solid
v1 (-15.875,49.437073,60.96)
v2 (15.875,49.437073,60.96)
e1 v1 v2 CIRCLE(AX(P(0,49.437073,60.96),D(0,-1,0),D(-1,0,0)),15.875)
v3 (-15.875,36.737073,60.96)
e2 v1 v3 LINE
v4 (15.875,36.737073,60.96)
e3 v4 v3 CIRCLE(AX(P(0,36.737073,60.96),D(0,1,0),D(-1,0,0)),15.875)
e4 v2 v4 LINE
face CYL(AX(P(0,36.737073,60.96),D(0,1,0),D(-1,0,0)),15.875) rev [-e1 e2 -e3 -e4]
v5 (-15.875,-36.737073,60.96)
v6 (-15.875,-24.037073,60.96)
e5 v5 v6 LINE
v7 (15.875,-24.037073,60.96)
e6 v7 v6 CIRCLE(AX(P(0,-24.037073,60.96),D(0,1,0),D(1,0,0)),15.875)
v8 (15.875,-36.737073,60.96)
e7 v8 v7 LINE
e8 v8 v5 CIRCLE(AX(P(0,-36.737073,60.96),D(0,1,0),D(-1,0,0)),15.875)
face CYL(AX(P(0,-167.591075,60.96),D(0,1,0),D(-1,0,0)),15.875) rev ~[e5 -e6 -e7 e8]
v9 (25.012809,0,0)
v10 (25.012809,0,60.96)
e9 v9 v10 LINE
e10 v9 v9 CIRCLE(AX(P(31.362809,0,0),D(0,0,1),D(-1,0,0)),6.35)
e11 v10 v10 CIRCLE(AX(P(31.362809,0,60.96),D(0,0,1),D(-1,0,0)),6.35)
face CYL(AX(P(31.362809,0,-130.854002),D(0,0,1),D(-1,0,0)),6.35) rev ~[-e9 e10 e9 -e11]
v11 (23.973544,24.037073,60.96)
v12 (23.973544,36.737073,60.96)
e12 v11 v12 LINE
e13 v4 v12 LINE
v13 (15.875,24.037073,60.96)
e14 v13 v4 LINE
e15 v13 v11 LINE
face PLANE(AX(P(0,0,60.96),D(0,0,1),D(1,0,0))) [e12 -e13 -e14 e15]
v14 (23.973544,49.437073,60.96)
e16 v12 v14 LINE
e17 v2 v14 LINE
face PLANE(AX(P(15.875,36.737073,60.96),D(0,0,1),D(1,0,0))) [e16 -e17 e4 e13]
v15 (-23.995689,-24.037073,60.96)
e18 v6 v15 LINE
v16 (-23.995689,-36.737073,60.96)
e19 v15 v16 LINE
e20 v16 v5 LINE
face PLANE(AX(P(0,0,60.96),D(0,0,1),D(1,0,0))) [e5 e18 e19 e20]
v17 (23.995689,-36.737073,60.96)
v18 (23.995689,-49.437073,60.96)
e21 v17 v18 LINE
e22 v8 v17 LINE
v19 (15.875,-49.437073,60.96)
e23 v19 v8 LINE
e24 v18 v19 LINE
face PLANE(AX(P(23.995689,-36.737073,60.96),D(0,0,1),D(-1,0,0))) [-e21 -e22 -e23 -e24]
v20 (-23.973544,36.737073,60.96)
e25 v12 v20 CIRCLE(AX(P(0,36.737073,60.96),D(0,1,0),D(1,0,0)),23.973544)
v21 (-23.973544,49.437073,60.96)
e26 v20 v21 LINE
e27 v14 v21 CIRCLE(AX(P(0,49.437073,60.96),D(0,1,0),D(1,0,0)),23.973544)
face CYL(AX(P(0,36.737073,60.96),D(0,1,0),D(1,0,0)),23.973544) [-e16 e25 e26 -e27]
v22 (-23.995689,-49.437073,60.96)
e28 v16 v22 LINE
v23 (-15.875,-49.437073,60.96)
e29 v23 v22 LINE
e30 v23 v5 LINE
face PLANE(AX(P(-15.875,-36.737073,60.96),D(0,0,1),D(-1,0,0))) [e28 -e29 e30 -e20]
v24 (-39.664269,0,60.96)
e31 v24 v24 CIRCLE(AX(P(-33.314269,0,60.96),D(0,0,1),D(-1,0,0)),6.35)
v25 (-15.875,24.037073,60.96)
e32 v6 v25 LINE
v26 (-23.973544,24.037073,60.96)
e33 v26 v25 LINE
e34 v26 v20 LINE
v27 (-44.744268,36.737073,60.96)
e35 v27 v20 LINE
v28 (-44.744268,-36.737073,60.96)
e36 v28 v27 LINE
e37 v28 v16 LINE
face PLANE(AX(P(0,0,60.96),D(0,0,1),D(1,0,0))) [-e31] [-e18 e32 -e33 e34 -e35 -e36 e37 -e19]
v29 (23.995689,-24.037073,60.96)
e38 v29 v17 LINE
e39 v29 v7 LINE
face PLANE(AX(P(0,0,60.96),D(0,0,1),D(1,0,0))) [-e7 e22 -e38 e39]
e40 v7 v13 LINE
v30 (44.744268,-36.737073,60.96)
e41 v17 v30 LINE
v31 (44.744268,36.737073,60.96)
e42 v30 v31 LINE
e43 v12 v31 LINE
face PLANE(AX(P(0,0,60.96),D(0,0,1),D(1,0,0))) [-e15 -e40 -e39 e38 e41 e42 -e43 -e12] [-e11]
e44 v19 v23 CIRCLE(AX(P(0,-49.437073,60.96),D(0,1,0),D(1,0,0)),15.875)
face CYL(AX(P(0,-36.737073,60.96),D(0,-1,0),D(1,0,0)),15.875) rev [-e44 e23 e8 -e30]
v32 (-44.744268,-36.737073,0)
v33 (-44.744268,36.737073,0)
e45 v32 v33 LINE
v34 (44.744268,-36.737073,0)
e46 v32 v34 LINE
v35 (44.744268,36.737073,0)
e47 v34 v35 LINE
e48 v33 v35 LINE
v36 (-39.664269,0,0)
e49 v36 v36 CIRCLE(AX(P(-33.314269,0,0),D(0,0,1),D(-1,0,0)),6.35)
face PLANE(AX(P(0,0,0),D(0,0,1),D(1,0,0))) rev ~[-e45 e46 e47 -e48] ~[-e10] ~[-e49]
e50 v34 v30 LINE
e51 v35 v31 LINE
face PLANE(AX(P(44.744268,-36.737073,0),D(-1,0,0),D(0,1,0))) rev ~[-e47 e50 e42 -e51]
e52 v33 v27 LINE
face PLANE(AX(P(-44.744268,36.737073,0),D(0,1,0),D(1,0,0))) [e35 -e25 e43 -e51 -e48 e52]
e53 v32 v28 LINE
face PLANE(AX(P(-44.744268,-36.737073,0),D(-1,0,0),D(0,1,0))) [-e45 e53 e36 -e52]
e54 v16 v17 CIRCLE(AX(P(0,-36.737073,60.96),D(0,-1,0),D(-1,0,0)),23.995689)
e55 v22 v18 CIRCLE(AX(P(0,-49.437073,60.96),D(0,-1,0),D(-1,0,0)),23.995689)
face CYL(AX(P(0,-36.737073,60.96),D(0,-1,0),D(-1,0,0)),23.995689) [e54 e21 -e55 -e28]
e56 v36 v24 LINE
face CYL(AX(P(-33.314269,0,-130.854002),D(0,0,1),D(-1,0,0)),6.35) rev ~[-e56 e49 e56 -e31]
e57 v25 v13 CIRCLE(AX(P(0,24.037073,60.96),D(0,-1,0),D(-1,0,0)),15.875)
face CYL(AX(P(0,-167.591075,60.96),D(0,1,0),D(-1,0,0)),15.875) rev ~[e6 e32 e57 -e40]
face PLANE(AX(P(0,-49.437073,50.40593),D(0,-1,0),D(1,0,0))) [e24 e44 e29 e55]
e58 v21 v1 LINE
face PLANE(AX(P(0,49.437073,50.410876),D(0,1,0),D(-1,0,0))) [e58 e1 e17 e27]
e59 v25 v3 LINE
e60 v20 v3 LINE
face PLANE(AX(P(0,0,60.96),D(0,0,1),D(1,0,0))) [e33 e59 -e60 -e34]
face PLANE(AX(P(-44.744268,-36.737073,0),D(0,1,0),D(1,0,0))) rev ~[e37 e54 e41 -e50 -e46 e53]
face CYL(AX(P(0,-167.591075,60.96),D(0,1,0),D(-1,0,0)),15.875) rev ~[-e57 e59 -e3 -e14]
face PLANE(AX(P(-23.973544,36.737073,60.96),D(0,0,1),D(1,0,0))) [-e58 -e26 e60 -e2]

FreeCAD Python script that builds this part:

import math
import FreeCAD as App
import Part
import Sketcher
from FreeCAD import Vector
Q = App.Units.Quantity


def add_polygon(sketch, points):
    """Adds a closed chain of lines whose ends are joined by coincident constraints."""
    first, n = sketch.GeometryCount, len(points)
    for a, b in zip(points, points[1:] + points[:1]):
        sketch.addGeometry(Part.LineSegment(App.Vector(*a, 0), App.Vector(*b, 0)), False)
    for i in range(n):
        sketch.addConstraint(Sketcher.Constraint("Coincident", first + i, 2, first + (i + 1) % n, 1))

doc = App.newDocument("Part")
params = doc.addObject("Spreadsheet::Sheet", "Params")
for row, (alias, value) in enumerate([
    ("pad1_length", "2.4 in"),
    ("sketch2_diameter", "0.5 in"),
    ("hole_diameter", "0.5 in"),
    ("sketch3_diameter", "1.25 in"),
    ("hole2_diameter", "1.25 in"),
    ("sketch4_radius", "0.625 in"),
    ("pad2_length", "1 in"),
    ("sketch5_radius", "0.625 in"),
    ("pad3_length", "1 in"),
], start=1):
    params.set(f"A{row}", alias)
    params.set(f"B{row}", "=" + value)
    params.setAlias(f"B{row}", alias)

body = doc.addObject("PartDesign::Body", "Body")

sketch1 = body.newObject("Sketcher::SketchObject", "Sketch")
sketch1.AttachmentSupport = (doc.getObject("XY_Plane"), [""])
sketch1.MapMode = "FlatFace"
add_polygon(sketch1, [(-45, 37), (-45, -37), (45, -37), (45, 37)])
sketch1.addConstraint(Sketcher.Constraint("Vertical", 0))
sketch1.addConstraint(Sketcher.Constraint("Horizontal", 1))
sketch1.addConstraint(Sketcher.Constraint("Vertical", 2))
sketch1.addConstraint(Sketcher.Constraint("Horizontal", 3))
sketch1.addConstraint(Sketcher.Constraint("Symmetric", 0, 2, 2, 2, -1, 1))
sketch1.addConstraint(Sketcher.Constraint("DistanceX", 1, 1, 1, 2, 89.488536))
sketch1.addConstraint(Sketcher.Constraint("DistanceY", 0, 2, 0, 1, 73.474146))
pad1 = body.newObject("PartDesign::Pad", "Pad")
pad1.Profile = sketch1
pad1.setExpression("Length", "Params.pad1_length")

sketch2 = body.newObject("Sketcher::SketchObject", "Sketch001")
sketch2.AttachmentSupport = (doc.getObject("XY_Plane"), [""])
sketch2.MapMode = "FlatFace"
sketch2.addGeometry(Part.Circle(Vector(-33, 0, 0), Vector(0, 0, 1), 6), False)
sketch2.addGeometry(Part.Circle(Vector(31, 0, 0), Vector(0, 0, 1), 6), False)
sketch2.addConstraint(Sketcher.Constraint("Equal", 0, 1))
sketch2.addConstraint(Sketcher.Constraint("PointOnObject", 0, 3, -1))
sketch2.addConstraint(Sketcher.Constraint("PointOnObject", 1, 3, -1))
sketch2.addConstraint(Sketcher.Constraint("Diameter", 0, Q("0.5 in")))
sketch2.addConstraint(Sketcher.Constraint("DistanceX", 0, 3, -1, 1, 33.314269))
sketch2.addConstraint(Sketcher.Constraint("DistanceX", -1, 1, 1, 3, 31.362809))
sketch2.setExpression("Constraints[3]", "Params.sketch2_diameter")
doc.recompute()
hole = body.newObject("PartDesign::Hole", "Hole")
hole.Profile = sketch2
hole.ThreadType = "None"
hole.setExpression("Diameter", "Params.hole_diameter")
hole.DepthType = "ThroughAll"
hole.Reversed = True

sketch3 = body.newObject("Sketcher::SketchObject", "Sketch002")
sketch3.AttachmentSupport = (doc.getObject("XZ_Plane"), [""])
sketch3.MapMode = "FlatFace"
sketch3.AttachmentOffset = App.Placement(Vector(0, 0, 36.737073), App.Rotation())
sketch3.addGeometry(Part.Circle(Vector(0, 61, 0), Vector(0, 0, 1), 16), False)
sketch3.addConstraint(Sketcher.Constraint("PointOnObject", 0, 3, -2))
sketch3.addConstraint(Sketcher.Constraint("Diameter", 0, Q("1.25 in")))
sketch3.addConstraint(Sketcher.Constraint("DistanceY", -1, 1, 0, 3, Q("2.4 in")))
sketch3.setExpression("Constraints[1]", "Params.sketch3_diameter")
doc.recompute()
hole2 = body.newObject("PartDesign::Hole", "Hole001")
hole2.Profile = sketch3
hole2.ThreadType = "None"
hole2.setExpression("Diameter", "Params.hole2_diameter")
hole2.DepthType = "ThroughAll"

sketch4 = body.newObject("Sketcher::SketchObject", "Sketch003")
sketch4.AttachmentSupport = (doc.getObject("XZ_Plane"), [""])
sketch4.MapMode = "FlatFace"
sketch4.AttachmentOffset = App.Placement(Vector(0, 0, 36.737073), App.Rotation())
sketch4.addGeometry(Part.LineSegment(Vector(-16, 61, 0), Vector(-24, 61, 0)), False)
sketch4.addGeometry(Part.ArcOfCircle(Part.Circle(Vector(0, 61, 0), Vector(0, 0, 1), 24), math.radians(180), math.radians(360)), False)
sketch4.addGeometry(Part.LineSegment(Vector(24, 61, 0), Vector(16, 61, 0)), False)
sketch4.addGeometry(Part.ArcOfCircle(Part.Circle(Vector(0, 61, 0), Vector(0, 0, 1), 16), math.radians(180), math.radians(360)), False)
sketch4.addConstraint(Sketcher.Constraint("Coincident", 0, 2, 1, 1))
sketch4.addConstraint(Sketcher.Constraint("Coincident", 1, 2, 2, 1))
sketch4.addConstraint(Sketcher.Constraint("Coincident", 2, 2, 3, 2))
sketch4.addConstraint(Sketcher.Constraint("Coincident", 3, 1, 0, 1))
sketch4.addConstraint(Sketcher.Constraint("Horizontal", 0))
sketch4.addConstraint(Sketcher.Constraint("Horizontal", 2))
sketch4.addConstraint(Sketcher.Constraint("Coincident", 3, 3, 1, 3))
sketch4.addConstraint(Sketcher.Constraint("Symmetric", 0, 2, 1, 2, -2))
sketch4.addConstraint(Sketcher.Constraint("Horizontal", 3, 3, 0, 2))
sketch4.addConstraint(Sketcher.Constraint("Radius", 3, Q("0.625 in")))
sketch4.addConstraint(Sketcher.Constraint("DistanceY", -1, 1, 1, 3, Q("2.4 in")))
sketch4.addConstraint(Sketcher.Constraint("Radius", 1, 23.995689))
sketch4.setExpression("Constraints[9]", "Params.sketch4_radius")
pad2 = body.newObject("PartDesign::Pad", "Pad001")
pad2.Profile = sketch4
pad2.setExpression("Length", "Params.pad2_length")
pad2.Midplane = True

sketch5 = body.newObject("Sketcher::SketchObject", "Sketch004")
sketch5.AttachmentSupport = (doc.getObject("XZ_Plane"), [""])
sketch5.MapMode = "FlatFace"
sketch5.AttachmentOffset = App.Placement(Vector(0, 0, -36.737073), App.Rotation())
sketch5.addGeometry(Part.LineSegment(Vector(16, 61, 0), Vector(24, 61, 0)), False)
sketch5.addGeometry(Part.ArcOfCircle(Part.Circle(Vector(0, 61, 0), Vector(0, 0, 1), 24), math.radians(180), math.radians(360)), False)
sketch5.addGeometry(Part.LineSegment(Vector(-24, 61, 0), Vector(-16, 61, 0)), False)
sketch5.addGeometry(Part.ArcOfCircle(Part.Circle(Vector(0, 61, 0), Vector(0, 0, 1), 16), math.radians(180), math.radians(360)), False)
sketch5.addConstraint(Sketcher.Constraint("Coincident", 0, 2, 1, 2))
sketch5.addConstraint(Sketcher.Constraint("Coincident", 1, 1, 2, 1))
sketch5.addConstraint(Sketcher.Constraint("Coincident", 2, 2, 3, 1))
sketch5.addConstraint(Sketcher.Constraint("Coincident", 3, 2, 0, 1))
sketch5.addConstraint(Sketcher.Constraint("Horizontal", 0))
sketch5.addConstraint(Sketcher.Constraint("Horizontal", 2))
sketch5.addConstraint(Sketcher.Constraint("Coincident", 3, 3, 1, 3))
sketch5.addConstraint(Sketcher.Constraint("Symmetric", 0, 2, 1, 1, -2))
sketch5.addConstraint(Sketcher.Constraint("Horizontal", 3, 3, 0, 2))
sketch5.addConstraint(Sketcher.Constraint("Radius", 3, Q("0.625 in")))
sketch5.addConstraint(Sketcher.Constraint("DistanceY", -1, 1, 1, 3, Q("2.4 in")))
sketch5.addConstraint(Sketcher.Constraint("Radius", 1, 23.973544))
sketch5.setExpression("Constraints[9]", "Params.sketch5_radius")
pad3 = body.newObject("PartDesign::Pad", "Pad002")
pad3.Profile = sketch5
pad3.setExpression("Length", "Params.pad3_length")
pad3.Midplane = True

doc.recompute()
